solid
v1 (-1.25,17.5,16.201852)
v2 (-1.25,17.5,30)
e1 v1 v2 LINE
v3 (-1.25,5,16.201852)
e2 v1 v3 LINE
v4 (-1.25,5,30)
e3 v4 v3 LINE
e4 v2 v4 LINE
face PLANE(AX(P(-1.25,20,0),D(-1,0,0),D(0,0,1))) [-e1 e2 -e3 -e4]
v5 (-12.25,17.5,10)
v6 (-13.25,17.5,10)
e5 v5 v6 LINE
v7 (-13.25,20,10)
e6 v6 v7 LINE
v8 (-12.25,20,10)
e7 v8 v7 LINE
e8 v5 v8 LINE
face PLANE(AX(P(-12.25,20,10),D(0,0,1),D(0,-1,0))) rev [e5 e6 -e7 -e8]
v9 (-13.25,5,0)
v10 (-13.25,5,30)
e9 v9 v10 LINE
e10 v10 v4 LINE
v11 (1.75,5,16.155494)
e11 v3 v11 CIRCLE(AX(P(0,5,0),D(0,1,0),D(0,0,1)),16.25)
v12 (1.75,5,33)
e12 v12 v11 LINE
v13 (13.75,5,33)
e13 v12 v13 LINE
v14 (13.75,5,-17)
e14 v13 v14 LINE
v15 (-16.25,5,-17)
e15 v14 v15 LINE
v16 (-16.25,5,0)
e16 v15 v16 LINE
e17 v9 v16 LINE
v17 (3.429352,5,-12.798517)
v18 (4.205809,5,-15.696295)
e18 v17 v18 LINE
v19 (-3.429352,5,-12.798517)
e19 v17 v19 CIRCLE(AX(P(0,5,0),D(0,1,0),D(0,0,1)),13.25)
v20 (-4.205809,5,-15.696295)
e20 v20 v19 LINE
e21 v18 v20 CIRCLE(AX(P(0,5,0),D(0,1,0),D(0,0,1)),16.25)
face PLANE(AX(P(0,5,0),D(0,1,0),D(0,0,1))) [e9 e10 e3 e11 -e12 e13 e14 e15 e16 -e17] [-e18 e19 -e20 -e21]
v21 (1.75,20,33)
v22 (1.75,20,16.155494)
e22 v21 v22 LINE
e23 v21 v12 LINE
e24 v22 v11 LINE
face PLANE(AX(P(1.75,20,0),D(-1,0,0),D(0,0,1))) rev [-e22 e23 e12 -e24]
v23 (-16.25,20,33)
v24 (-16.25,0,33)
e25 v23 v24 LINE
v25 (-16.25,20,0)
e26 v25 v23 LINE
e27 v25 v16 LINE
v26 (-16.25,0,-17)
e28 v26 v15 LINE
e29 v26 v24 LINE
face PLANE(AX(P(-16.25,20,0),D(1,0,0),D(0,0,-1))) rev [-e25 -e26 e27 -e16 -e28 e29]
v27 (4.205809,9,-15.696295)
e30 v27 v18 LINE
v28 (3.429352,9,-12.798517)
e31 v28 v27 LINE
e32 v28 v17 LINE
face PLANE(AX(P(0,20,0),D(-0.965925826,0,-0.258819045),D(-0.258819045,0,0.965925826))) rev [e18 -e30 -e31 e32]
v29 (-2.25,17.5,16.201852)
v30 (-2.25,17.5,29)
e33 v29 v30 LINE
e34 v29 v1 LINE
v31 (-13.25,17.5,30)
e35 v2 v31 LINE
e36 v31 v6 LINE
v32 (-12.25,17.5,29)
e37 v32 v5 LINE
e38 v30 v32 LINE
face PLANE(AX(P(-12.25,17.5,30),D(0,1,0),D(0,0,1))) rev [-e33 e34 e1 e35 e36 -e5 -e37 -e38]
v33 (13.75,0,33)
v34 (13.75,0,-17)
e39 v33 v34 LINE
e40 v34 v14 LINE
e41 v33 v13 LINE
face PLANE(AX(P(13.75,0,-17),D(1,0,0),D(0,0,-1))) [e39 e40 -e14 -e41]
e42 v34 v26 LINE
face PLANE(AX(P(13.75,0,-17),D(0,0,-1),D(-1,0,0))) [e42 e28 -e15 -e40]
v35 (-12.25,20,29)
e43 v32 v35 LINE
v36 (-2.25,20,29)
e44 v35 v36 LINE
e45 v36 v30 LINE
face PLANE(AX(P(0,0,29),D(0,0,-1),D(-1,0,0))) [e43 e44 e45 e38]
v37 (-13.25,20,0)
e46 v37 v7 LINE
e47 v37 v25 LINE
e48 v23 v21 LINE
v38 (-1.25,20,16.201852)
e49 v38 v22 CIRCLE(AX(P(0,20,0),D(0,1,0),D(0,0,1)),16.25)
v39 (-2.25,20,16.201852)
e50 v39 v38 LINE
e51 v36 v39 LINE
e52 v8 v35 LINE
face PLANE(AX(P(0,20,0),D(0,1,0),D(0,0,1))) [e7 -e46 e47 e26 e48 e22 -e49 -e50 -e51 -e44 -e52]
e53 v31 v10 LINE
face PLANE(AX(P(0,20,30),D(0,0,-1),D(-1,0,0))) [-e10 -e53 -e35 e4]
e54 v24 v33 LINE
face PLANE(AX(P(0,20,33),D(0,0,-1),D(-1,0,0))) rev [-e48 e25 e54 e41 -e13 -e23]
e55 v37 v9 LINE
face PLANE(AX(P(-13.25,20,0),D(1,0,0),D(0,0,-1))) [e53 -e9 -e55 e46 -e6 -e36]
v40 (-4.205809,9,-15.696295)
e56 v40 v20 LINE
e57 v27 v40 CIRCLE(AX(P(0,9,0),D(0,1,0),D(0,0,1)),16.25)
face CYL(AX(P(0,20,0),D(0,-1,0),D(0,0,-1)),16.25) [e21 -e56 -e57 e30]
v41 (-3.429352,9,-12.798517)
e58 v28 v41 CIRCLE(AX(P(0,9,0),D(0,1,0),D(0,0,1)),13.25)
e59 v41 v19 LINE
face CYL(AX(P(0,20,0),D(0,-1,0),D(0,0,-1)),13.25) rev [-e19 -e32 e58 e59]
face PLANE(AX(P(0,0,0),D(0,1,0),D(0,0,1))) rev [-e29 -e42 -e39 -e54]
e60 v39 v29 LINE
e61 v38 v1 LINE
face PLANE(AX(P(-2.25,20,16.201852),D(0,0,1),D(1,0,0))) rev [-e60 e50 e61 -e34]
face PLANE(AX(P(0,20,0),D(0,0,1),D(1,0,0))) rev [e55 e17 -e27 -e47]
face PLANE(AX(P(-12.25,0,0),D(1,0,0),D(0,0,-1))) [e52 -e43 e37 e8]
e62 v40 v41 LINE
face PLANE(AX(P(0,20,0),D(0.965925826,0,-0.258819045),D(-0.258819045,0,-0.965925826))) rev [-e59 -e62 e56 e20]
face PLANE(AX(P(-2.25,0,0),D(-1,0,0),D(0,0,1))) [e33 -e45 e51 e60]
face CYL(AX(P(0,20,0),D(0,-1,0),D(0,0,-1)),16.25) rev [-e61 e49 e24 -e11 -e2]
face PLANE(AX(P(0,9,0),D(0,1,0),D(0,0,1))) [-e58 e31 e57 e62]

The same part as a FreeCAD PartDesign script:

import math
import FreeCAD as App
import Part
import Sketcher
Q = App.Units.Quantity


def faces_at(feature, points):
    """Names of the faces that lie closest to the given points."""
    faces = feature.Shape.Faces
    near = lambda p: min(range(len(faces)), key=lambda i: faces[i].distToShape(Part.Vertex(*p))[0])
    return sorted({f"Face{near(p) + 1}" for p in points})


def add_polygon(sketch, points):
    """Adds a closed chain of lines whose ends are joined by coincident constraints."""
    first, n = sketch.GeometryCount, len(points)
    for a, b in zip(points, points[1:] + points[:1]):
        sketch.addGeometry(Part.LineSegment(App.Vector(*a, 0), App.Vector(*b, 0)), False)
    for i in range(n):
        sketch.addConstraint(Sketcher.Constraint("Coincident", first + i, 2, first + (i + 1) % n, 1))

doc = App.newDocument("Part")
body = doc.addObject("PartDesign::Body", "Body")

# Sketch on XZ plane
sketch1 = body.newObject("Sketcher::SketchObject", "Sketch")
sketch1.AttachmentSupport = (doc.getObject("XZ_Plane"), [""])
sketch1.MapMode = "FlatFace"
add_polygon(sketch1, [(-22.5, -42.5), (-22.5, 42.5), (22.5, 42.5), (22.5, -42.5)])  # lines 0-3
sketch1.addConstraint(Sketcher.Constraint("Vertical", 0))
sketch1.addConstraint(Sketcher.Constraint("Horizontal", 1))
sketch1.addConstraint(Sketcher.Constraint("Vertical", 2))
sketch1.addConstraint(Sketcher.Constraint("Horizontal", 3))
sketch1.addConstraint(Sketcher.Constraint("Symmetric", 0, 2, 2, 2, -1, 1))
sketch1.addConstraint(Sketcher.Constraint("DistanceX", 1, 1, 1, 2, 45.0))
sketch1.addConstraint(Sketcher.Constraint("DistanceY", 0, 1, 0, 2, 85.0))
pad1 = body.newObject("PartDesign::Pad", "Pad")
pad1.Profile = sketch1
pad1.Length = 100
pad1.Reversed = True
doc.recompute()

thickness = body.newObject("PartDesign::Thickness", "Thickness")
thickness.Base = (pad1, faces_at(pad1, [(0, 100, 0)]))
thickness.Value = 5
thickness.Reversed = True
thickness.Join = "Intersection"

# Sketch on XZ plane
sketch2 = body.newObject("Sketcher::SketchObject", "Sketch001")
sketch2.AttachmentSupport = (doc.getObject("XZ_Plane"), [""])
sketch2.MapMode = "FlatFace"
sketch2.AttachmentOffset = App.Placement(App.Vector(0, 0, -5), App.Rotation())
sketch2.addGeometry(Part.LineSegment(App.Vector(-13.25, 30, 0), App.Vector(-13.25, 0, 0)), False)
sketch2.addGeometry(Part.LineSegment(App.Vector(-13.25, 0, 0), App.Vector(-16.25, 0, 0)), False)
sketch2.addGeometry(Part.LineSegment(App.Vector(-16.25, 0, 0), App.Vector(-16.25, 33, 0)), False)
sketch2.addGeometry(Part.LineSegment(App.Vector(-16.25, 33, 0), App.Vector(1.75, 33, 0)), False)
sketch2.addGeometry(Part.LineSegment(App.Vector(1.75, 33, 0), App.Vector(1.75, 16.155494, 0)), False)
sketch2.addGeometry(Part.ArcOfCircle(Part.Circle(App.Vector(0, 0, 0), App.Vector(0, 0, 1), 16.25), math.radians(83.817696), math.radians(94.411726)), False)
sketch2.addGeometry(Part.LineSegment(App.Vector(-1.25, 16.201852, 0), App.Vector(-1.25, 30, 0)), False)
sketch2.addGeometry(Part.LineSegment(App.Vector(-1.25, 30, 0), App.Vector(-13.25, 30, 0)), False)
sketch2.addGeometry(Part.LineSegment(App.Vector(-4.205809, -15.696295, 0), App.Vector(-3.429352, -12.798517, 0)), False)
sketch2.addGeometry(Part.ArcOfCircle(Part.Circle(App.Vector(0, 0, 0), App.Vector(0, 0, 1), 13.25), math.radians(-105), math.radians(-75)), False)
sketch2.addGeometry(Part.LineSegment(App.Vector(3.429352, -12.798517, 0), App.Vector(4.205809, -15.696295, 0)), False)
sketch2.addGeometry(Part.ArcOfCircle(Part.Circle(App.Vector(0, 0, 0), App.Vector(0, 0, 1), 16.25), math.radians(-105), math.radians(-75)), False)
sketch2.addConstraint(Sketcher.Constraint("Coincident", 0, 2, 1, 1))
sketch2.addConstraint(Sketcher.Constraint("Coincident", 1, 2, 2, 1))
sketch2.addConstraint(Sketcher.Constraint("Coincident", 2, 2, 3, 1))
sketch2.addConstraint(Sketcher.Constraint("Coincident", 3, 2, 4, 1))
sketch2.addConstraint(Sketcher.Constraint("Coincident", 4, 2, 5, 1))
sketch2.addConstraint(Sketcher.Constraint("Coincident", 5, 2, 6, 1))
sketch2.addConstraint(Sketcher.Constraint("Coincident", 6, 2, 7, 1))
sketch2.addConstraint(Sketcher.Constraint("Coincident", 7, 2, 0, 1))
sketch2.addConstraint(Sketcher.Constraint("Coincident", 8, 2, 9, 1))
sketch2.addConstraint(Sketcher.Constraint("Coincident", 9, 2, 10, 1))
sketch2.addConstraint(Sketcher.Constraint("Coincident", 10, 2, 11, 2))
sketch2.addConstraint(Sketcher.Constraint("Coincident", 11, 1, 8, 1))
sketch2.addConstraint(Sketcher.Constraint("Vertical", 0))
sketch2.addConstraint(Sketcher.Constraint("Horizontal", 1))
sketch2.addConstraint(Sketcher.Constraint("Vertical", 2))
sketch2.addConstraint(Sketcher.Constraint("Horizontal", 3))
sketch2.addConstraint(Sketcher.Constraint("Vertical", 4))
sketch2.addConstraint(Sketcher.Constraint("Vertical", 6))
sketch2.addConstraint(Sketcher.Constraint("Horizontal", 7))
sketch2.addConstraint(Sketcher.Constraint("Coincident", 5, 3, -1, 1))
sketch2.addConstraint(Sketcher.Constraint("Coincident", 9, 3, -1, 1))
sketch2.addConstraint(Sketcher.Constraint("Coincident", 11, 3, -1, 1))
sketch2.addConstraint(Sketcher.Constraint("Equal", 5, 11))
sketch2.addConstraint(Sketcher.Constraint("PointOnObject", 0, 2, -1))
sketch2.addConstraint(Sketcher.Constraint("Horizontal", 8, 2, 9, 2))
sketch2.addConstraint(Sketcher.Constraint("Horizontal", 10, 2, 11, 1))
sketch2.addConstraint(Sketcher.Constraint("DistanceX", 1, 2, 1, 1, 3.0))
sketch2.addConstraint(Sketcher.Constraint("DistanceX", 3, 1, 3, 2, 18.0))
sketch2.addConstraint(Sketcher.Constraint("DistanceX", 7, 2, 7, 1, 12.0))
sketch2.addConstraint(Sketcher.Constraint("DistanceY", 0, 2, 0, 1, 30.0))
sketch2.addConstraint(Sketcher.Constraint("DistanceY", 2, 1, 2, 2, 33.0))
sketch2.addConstraint(Sketcher.Constraint("Angle", 8, Q("75 deg")))
sketch2.addConstraint(Sketcher.Constraint("Radius", 5, 16.25))
sketch2.addConstraint(Sketcher.Constraint("Radius", 9, 13.25))
sketch2.addConstraint(Sketcher.Constraint("DistanceX", 0, 2, -1, 1, 13.25))
sketch2.addConstraint(Sketcher.Constraint("DistanceX", -1, 1, 10, 2, 4.205809))
pad2 = body.newObject("PartDesign::Pad", "Pad001")
pad2.Profile = sketch2
pad2.Length = 15
pad2.Reversed = True

# Sketch on YZ plane
sketch3 = body.newObject("Sketcher::SketchObject", "Sketch002")
sketch3.AttachmentSupport = (doc.getObject("YZ_Plane"), [""])
sketch3.MapMode = "FlatFace"
sketch3.AttachmentOffset = App.Placement(App.Vector(0, 0, -13.25), App.Rotation())
add_polygon(sketch3, [(20, 30), (17.5, 30), (17.5, 10), (20, 10)])  # lines 0-3
sketch3.addConstraint(Sketcher.Constraint("Horizontal", 0))
sketch3.addConstraint(Sketcher.Constraint("Vertical", 1))
sketch3.addConstraint(Sketcher.Constraint("Horizontal", 2))
sketch3.addConstraint(Sketcher.Constraint("Vertical", 3))
sketch3.addConstraint(Sketcher.Constraint("DistanceY", 1, 2, 1, 1, 20.0))
sketch3.addConstraint(Sketcher.Constraint("DistanceX", 0, 2, 0, 1, 2.5))
sketch3.addConstraint(Sketcher.Constraint("DistanceY", -1, 1, 0, 2, 30.0))
sketch3.addConstraint(Sketcher.Constraint("DistanceX", -1, 1, 2, 2, 20.0))
pad3 = body.newObject("PartDesign::Pad", "Pad002")
pad3.Profile = sketch3
pad3.Length = 1

# Sketch on YZ plane
sketch4 = body.newObject("Sketcher::SketchObject", "Sketch003")
sketch4.AttachmentSupport = (doc.getObject("YZ_Plane"), [""])
sketch4.MapMode = "FlatFace"
sketch4.AttachmentOffset = App.Placement(App.Vector(0, 0, -1.25), App.Rotation())
add_polygon(sketch4, [(20, 16.201852), (17.5, 16.201852), (17.5, 30), (20, 30)])  # lines 0-3
sketch4.addConstraint(Sketcher.Constraint("Horizontal", 0))
sketch4.addConstraint(Sketcher.Constraint("Vertical", 1))
sketch4.addConstraint(Sketcher.Constraint("Horizontal", 2))
sketch4.addConstraint(Sketcher.Constraint("Vertical", 3))
sketch4.addConstraint(Sketcher.Constraint("DistanceX", 0, 2, 0, 1, 2.5))
sketch4.addConstraint(Sketcher.Constraint("DistanceY", -1, 1, 1, 2, 30.0))
sketch4.addConstraint(Sketcher.Constraint("DistanceX", -1, 1, 2, 2, 20.0))
sketch4.addConstraint(Sketcher.Constraint("DistanceY", 1, 1, 1, 2, 13.798148))
pad4 = body.newObject("PartDesign::Pad", "Pad003")
pad4.Profile = sketch4
pad4.Length = 1
pad4.Reversed = True

# Sketch on XY plane
sketch5 = body.newObject("Sketcher::SketchObject", "Sketch004")
sketch5.AttachmentSupport = (doc.getObject("XY_Plane"), [""])
sketch5.MapMode = "FlatFace"
sketch5.AttachmentOffset = App.Placement(App.Vector(0, 0, 30), App.Rotation())
add_polygon(sketch5, [(-2.25, 20), (-2.25, 17.5), (-12.25, 17.5), (-12.25, 20)])  # lines 0-3
sketch5.addConstraint(Sketcher.Constraint("Vertical", 0))
sketch5.addConstraint(Sketcher.Constraint("Horizontal", 1))
sketch5.addConstraint(Sketcher.Constraint("Vertical", 2))
sketch5.addConstraint(Sketcher.Constraint("Horizontal", 3))
sketch5.addConstraint(Sketcher.Constraint("DistanceX", 1, 2, 1, 1, 10.0))
sketch5.addConstraint(Sketcher.Constraint("DistanceY", 0, 2, 0, 1, 2.5))
sketch5.addConstraint(Sketcher.Constraint("DistanceY", -1, 1, 2, 2, 20.0))
sketch5.addConstraint(Sketcher.Constraint("DistanceX", 0, 2, -1, 1, 2.25))
pad5 = body.newObject("PartDesign::Pad", "Pad004")
pad5.Profile = sketch5
pad5.Length = 1
pad5.Reversed = True

# Sketch on XZ plane
sketch6 = body.newObject("Sketcher::SketchObject", "Sketch005")
sketch6.AttachmentSupport = (doc.getObject("XZ_Plane"), [""])
sketch6.MapMode = "FlatFace"
sketch6.AttachmentOffset = App.Placement(App.Vector(0, 0, -20), App.Rotation())
add_polygon(sketch6, [(-5.075266, -17.37767), (-5.075266, -11.055024), (5.402262, -11.055024), (5.402262, -17.37767)])  # lines 0-3
sketch6.addConstraint(Sketcher.Constraint("Vertical", 0))
sketch6.addConstraint(Sketcher.Constraint("Horizontal", 1))
sketch6.addConstraint(Sketcher.Constraint("Vertical", 2))
sketch6.addConstraint(Sketcher.Constraint("Horizontal", 3))
sketch6.addConstraint(Sketcher.Constraint("DistanceX", 1, 1, 1, 2, 10.477528))
sketch6.addConstraint(Sketcher.Constraint("DistanceY", 0, 1, 0, 2, 6.322646))
sketch6.addConstraint(Sketcher.Constraint("DistanceX", -1, 1, 1, 2, 5.402262))
sketch6.addConstraint(Sketcher.Constraint("DistanceY", 2, 2, -1, 1, 17.37767))
pocket1 = body.newObject("PartDesign::Pocket", "Pocket")
pocket1.Profile = sketch6
pocket1.Length = 11
pocket1.Reversed = True

# Sketch on XZ plane
sketch7 = body.newObject("Sketcher::SketchObject", "Sketch006")
sketch7.AttachmentSupport = (doc.getObject("XZ_Plane"), [""])
sketch7.MapMode = "FlatFace"
sketch7.AttachmentOffset = App.Placement(App.Vector(0, 0, -5), App.Rotation())
add_polygon(sketch7, [(-25.747012, -48.034976), (-25.747012, 45.839133), (28.486138, 45.839133), (28.486138, -48.034976)])  # lines 0-3
add_polygon(sketch7, [(13.75, 33), (-16.25, 33), (-16.25, -17), (13.75, -17)])  # lines 4-7
sketch7.addConstraint(Sketcher.Constraint("Vertical", 0))
sketch7.addConstraint(Sketcher.Constraint("Horizontal", 1))
sketch7.addConstraint(Sketcher.Constraint("Vertical", 2))
sketch7.addConstraint(Sketcher.Constraint("Horizontal", 3))
sketch7.addConstraint(Sketcher.Constraint("Horizontal", 4))
sketch7.addConstraint(Sketcher.Constraint("Vertical", 5))
sketch7.addConstraint(Sketcher.Constraint("Horizontal", 6))
sketch7.addConstraint(Sketcher.Constraint("Vertical", 7))
sketch7.addConstraint(Sketcher.Constraint("DistanceX", 4, 2, 4, 1, 30.0))
sketch7.addConstraint(Sketcher.Constraint("DistanceY", 5, 2, 5, 1, 50.0))
sketch7.addConstraint(Sketcher.Constraint("DistanceY", -1, 1, 4, 2, 33.0))
sketch7.addConstraint(Sketcher.Constraint("DistanceX", 4, 2, -1, 1, 16.25))
sketch7.addConstraint(Sketcher.Constraint("DistanceX", 1, 1, 1, 2, 54.23315))
sketch7.addConstraint(Sketcher.Constraint("DistanceY", 0, 1, 0, 2, 93.874108))
sketch7.addConstraint(Sketcher.Constraint("DistanceX", 0, 2, -1, 1, 25.747012))
sketch7.addConstraint(Sketcher.Constraint("DistanceY", -1, 1, 0, 2, 45.839133))
pocket2 = body.newObject("PartDesign::Pocket", "Pocket001")
pocket2.Profile = sketch7
pocket2.Type = "ThroughAll"
pocket2.Midplane = True

doc.recompute()
